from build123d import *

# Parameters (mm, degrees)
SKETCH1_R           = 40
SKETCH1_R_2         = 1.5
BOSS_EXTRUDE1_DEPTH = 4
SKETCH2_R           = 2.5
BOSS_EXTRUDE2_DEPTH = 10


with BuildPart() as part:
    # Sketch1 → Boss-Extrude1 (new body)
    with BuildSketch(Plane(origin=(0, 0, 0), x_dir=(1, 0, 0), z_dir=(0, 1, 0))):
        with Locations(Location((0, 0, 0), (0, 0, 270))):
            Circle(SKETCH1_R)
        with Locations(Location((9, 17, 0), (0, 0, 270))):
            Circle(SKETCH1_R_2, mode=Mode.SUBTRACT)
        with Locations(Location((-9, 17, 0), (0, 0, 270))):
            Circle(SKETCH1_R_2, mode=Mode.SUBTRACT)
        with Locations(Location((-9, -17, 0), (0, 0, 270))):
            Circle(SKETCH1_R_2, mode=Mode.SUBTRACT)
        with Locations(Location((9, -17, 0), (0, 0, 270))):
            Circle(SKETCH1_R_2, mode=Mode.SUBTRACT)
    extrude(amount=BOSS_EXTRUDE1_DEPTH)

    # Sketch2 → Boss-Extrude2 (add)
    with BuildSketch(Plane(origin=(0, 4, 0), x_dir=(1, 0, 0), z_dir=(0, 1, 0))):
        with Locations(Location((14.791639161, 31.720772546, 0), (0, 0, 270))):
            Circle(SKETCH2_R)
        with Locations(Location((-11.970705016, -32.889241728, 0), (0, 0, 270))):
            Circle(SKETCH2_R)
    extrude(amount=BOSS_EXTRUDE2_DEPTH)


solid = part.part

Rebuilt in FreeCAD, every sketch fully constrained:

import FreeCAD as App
import Part
import Sketcher

V = App.Vector

doc = App.newDocument("Part")
body = doc.addObject("PartDesign::Body", "Body")

# Sketch on XZ plane
sketch1 = body.newObject("Sketcher::SketchObject", "Sketch")
sketch1.AttachmentSupport = (doc.getObject("XZ_Plane"), [""])
sketch1.MapMode = "FlatFace"
sketch1.addGeometry([
    Part.Circle(V(0, 0, 0), V(0, 0, 1), 40),  # 0
    Part.Circle(V(-9, -17, 0), V(0, 0, 1), 1.5),  # 1
    Part.Circle(V(-9, 17, 0), V(0, 0, 1), 1.5),  # 2
    Part.Circle(V(9, -17, 0), V(0, 0, 1), 1.5),  # 3
    Part.Circle(V(9, 17, 0), V(0, 0, 1), 1.5),  # 4
], False)
sketch1.addConstraint([
    Sketcher.Constraint("Coincident", 0, 3, -1, 1),
    Sketcher.Constraint("Equal", 1, 2),
    Sketcher.Constraint("Equal", 2, 3),
    Sketcher.Constraint("Equal", 3, 4),
    Sketcher.Constraint("Symmetric", 2, 3, 3, 3, -1, 1),
    Sketcher.Constraint("Symmetric", 1, 3, 4, 3, -1, 1),
    Sketcher.Constraint("Symmetric", 1, 3, 3, 3, -2),
    Sketcher.Constraint("Diameter", 0, 80.0),
    Sketcher.Constraint("Diameter", 1, 3.0),
    Sketcher.Constraint("DistanceX", 1, 3, -1, 1, 9.0),
    Sketcher.Constraint("DistanceY", 1, 3, -1, 1, 17.0),
])
pad1 = body.newObject("PartDesign::Pad", "Pad")
pad1.Profile = sketch1
pad1.Length = 4
pad1.Reversed = True

# Sketch on XZ plane
sketch2 = body.newObject("Sketcher::SketchObject", "Sketch001")
sketch2.AttachmentSupport = (doc.getObject("XZ_Plane"), [""])
sketch2.MapMode = "FlatFace"
sketch2.AttachmentOffset = App.Placement(V(0, 0, -4), App.Rotation())
sketch2.addGeometry([
    Part.Circle(V(14.8, -31.7, 0), V(0, 0, 1), 2.5),
    Part.Circle(V(-12, 32.9, 0), V(0, 0, 1), 2.5),
], False)
sketch2.addConstraint([
    Sketcher.Constraint("Equal", 0, 1),
    Sketcher.Constraint("Diameter", 0, 5.0),
    Sketcher.Constraint("DistanceX", -1, 1, 0, 3, 14.791639),
    Sketcher.Constraint("DistanceY", -1, 1, 1, 3, 32.889242),
    Sketcher.Constraint("DistanceY", 0, 3, -1, 1, 31.720773),
    Sketcher.Constraint("DistanceX", 1, 3, -1, 1, 11.970705),
])
pad2 = body.newObject("PartDesign::Pad", "Pad001")
pad2.Profile = sketch2
pad2.Length = 10
pad2.Reversed = True

doc.recompute()
